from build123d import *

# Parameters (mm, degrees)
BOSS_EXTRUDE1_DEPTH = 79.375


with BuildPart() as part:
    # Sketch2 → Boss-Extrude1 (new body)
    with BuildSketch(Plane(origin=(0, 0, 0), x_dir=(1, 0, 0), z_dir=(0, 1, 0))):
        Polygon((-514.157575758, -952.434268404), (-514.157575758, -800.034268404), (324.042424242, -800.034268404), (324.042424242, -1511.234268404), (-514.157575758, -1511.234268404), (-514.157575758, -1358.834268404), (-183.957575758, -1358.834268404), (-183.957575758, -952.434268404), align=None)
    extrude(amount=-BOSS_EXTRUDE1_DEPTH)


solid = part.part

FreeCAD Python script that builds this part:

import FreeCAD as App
import Part
import Sketcher
from FreeCAD import Vector
Q = App.Units.Quantity


def add_polygon(sketch, points):
    """Adds a closed chain of lines whose ends are joined by coincident constraints."""
    first, n = sketch.GeometryCount, len(points)
    for a, b in zip(points, points[1:] + points[:1]):
        sketch.addGeometry(Part.LineSegment(App.Vector(*a, 0), App.Vector(*b, 0)), False)
    for i in range(n):
        sketch.addConstraint(Sketcher.Constraint("Coincident", first + i, 2, first + (i + 1) % n, 1))

doc = App.newDocument("Part")
body = doc.addObject("PartDesign::Body", "Body")

sketch1 = body.newObject("Sketcher::SketchObject", "Sketch")
sketch1.AttachmentSupport = (doc.getObject("XZ_Plane"), [""])
sketch1.MapMode = "FlatFace"
add_polygon(sketch1, [(-514, 800), (-514, 952), (-184, 952), (-184, 1359), (-514, 1359), (-514, 1511), (324, 1511), (324, 800)])
sketch1.addConstraint([
    Sketcher.Constraint("Vertical", 0),
    Sketcher.Constraint("Horizontal", 1),
    Sketcher.Constraint("Vertical", 2),
    Sketcher.Constraint("Horizontal", 3),
    Sketcher.Constraint("Vertical", 4),
    Sketcher.Constraint("Horizontal", 5),
    Sketcher.Constraint("Vertical", 6),
    Sketcher.Constraint("Horizontal", 7),
    Sketcher.Constraint("Vertical", 0, 2, 3, 2),
    Sketcher.Constraint("Equal", 0, 4),
    Sketcher.Constraint("DistanceX", 1, 1, 1, 2, Q("13 in")),
    Sketcher.Constraint("DistanceX", 5, 1, 5, 2, Q("33 in")),
    Sketcher.Constraint("DistanceY", 0, 1, 0, 2, Q("6 in")),
    Sketcher.Constraint("DistanceY", 2, 1, 2, 2, Q("16 in")),
    Sketcher.Constraint("DistanceY", -1, 1, 0, 2, Q("952.434268 mm")),
    Sketcher.Constraint("DistanceX", 0, 2, -1, 1, Q("514.157576 mm")),
])
pad1 = body.newObject("PartDesign::Pad", "Pad")
pad1.Profile = sketch1
pad1.Length = Q("3.125 in")

doc.recompute()
